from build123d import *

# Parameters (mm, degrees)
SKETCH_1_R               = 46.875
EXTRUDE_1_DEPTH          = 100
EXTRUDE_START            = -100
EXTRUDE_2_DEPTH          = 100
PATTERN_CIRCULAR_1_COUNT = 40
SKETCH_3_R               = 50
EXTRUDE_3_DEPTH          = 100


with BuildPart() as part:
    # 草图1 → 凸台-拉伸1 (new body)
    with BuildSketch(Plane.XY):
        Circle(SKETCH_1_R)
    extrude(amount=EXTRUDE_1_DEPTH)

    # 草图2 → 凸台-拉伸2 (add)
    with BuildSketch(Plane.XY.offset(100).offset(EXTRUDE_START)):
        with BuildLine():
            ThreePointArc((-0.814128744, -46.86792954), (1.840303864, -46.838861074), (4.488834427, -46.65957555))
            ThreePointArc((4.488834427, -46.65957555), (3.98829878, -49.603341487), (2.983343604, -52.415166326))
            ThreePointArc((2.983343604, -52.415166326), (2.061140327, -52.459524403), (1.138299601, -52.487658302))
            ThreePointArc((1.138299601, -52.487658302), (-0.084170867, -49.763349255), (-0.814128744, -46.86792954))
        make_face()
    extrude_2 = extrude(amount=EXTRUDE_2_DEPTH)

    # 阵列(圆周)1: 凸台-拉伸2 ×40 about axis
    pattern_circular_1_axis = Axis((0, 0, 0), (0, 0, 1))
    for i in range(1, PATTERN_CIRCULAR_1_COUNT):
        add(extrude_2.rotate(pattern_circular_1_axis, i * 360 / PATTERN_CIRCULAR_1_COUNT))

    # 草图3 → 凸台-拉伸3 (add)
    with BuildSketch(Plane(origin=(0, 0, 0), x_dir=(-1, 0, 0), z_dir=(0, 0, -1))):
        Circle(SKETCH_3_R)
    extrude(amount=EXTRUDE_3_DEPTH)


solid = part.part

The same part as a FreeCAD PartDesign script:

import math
import FreeCAD as App
import Part
import Sketcher

V = App.Vector

doc = App.newDocument("Part")
body = doc.addObject("PartDesign::Body", "Body")

sketch1 = body.newObject("Sketcher::SketchObject", "Sketch")
sketch1.AttachmentSupport = (doc.getObject("XY_Plane"), [""])
sketch1.MapMode = "FlatFace"
sketch1.addGeometry(Part.Circle(V(0, 0, 0), V(0, 0, 1), 46.875), False)
sketch1.addConstraint([
    Sketcher.Constraint("Coincident", 0, 3, -1, 1),
    Sketcher.Constraint("Diameter", 0, 93.75),
])
pad1 = body.newObject("PartDesign::Pad", "Pad")
pad1.Profile = sketch1
pad1.Length = 100

sketch2 = body.newObject("Sketcher::SketchObject", "Sketch001")
sketch2.AttachmentSupport = (doc.getObject("XY_Plane"), [""])
sketch2.MapMode = "FlatFace"
sketch2.addGeometry([
    Part.ArcOfCircle(Part.Circle(V(0, 0, 0), V(0, 0, 1), 46.875), math.radians(-90.995168), math.radians(-84.504832)),
    Part.ArcOfCircle(Part.Circle(V(16.06969, -44.151111, 0), V(0, 0, 1), 17.101007), math.radians(-170.85875), math.radians(-150.824348)),
    Part.ArcOfCircle(Part.Circle(V(0, -0.000001, 0), V(0, 0, 1), 52.499999), math.radians(-88.757621), math.radians(-86.742379)),
    Part.ArcOfCircle(Part.Circle(V(-12.556096, -45.275821, 0), V(0, 0, 1), 17.101007), math.radians(-24.675652), math.radians(-4.64125)),
], False)
sketch2.addConstraint([
    Sketcher.Constraint("Coincident", 0, 1, 1, 1),
    Sketcher.Constraint("Coincident", 1, 2, 2, 1),
    Sketcher.Constraint("Coincident", 2, 2, 3, 1),
    Sketcher.Constraint("Coincident", 3, 2, 0, 2),
    Sketcher.Constraint("Coincident", 0, 3, -1, 1),
    Sketcher.Constraint("Coincident", 2, 3, -1, 1),
    Sketcher.Constraint("Equal", 1, 3),
    Sketcher.Constraint("Radius", 2, 52.499999),
    Sketcher.Constraint("Radius", 0, 46.875),
    Sketcher.Constraint("Radius", 1, 17.101007),
    Sketcher.Constraint("DistanceX", -1, 1, 1, 2, 1.1383),
    Sketcher.Constraint("DistanceX", -1, 1, 1, 3, 16.06969),
    Sketcher.Constraint("DistanceY", 3, 3, -1, 1, 45.275821),
    Sketcher.Constraint("DistanceY", 1, 2, 2, 2, 0.072492),
])
pad2 = body.newObject("PartDesign::Pad", "Pad001")
pad2.Profile = sketch2
pad2.Length = 100
doc.recompute()

polarpattern = body.newObject("PartDesign::PolarPattern", "PolarPattern")
polarpattern.Originals = [pad2]
polarpattern.Axis = (doc.getObject("Z_Axis"), [""])
polarpattern.Angle = 360
polarpattern.Occurrences = 40
body.Tip = polarpattern

sketch3 = body.newObject("Sketcher::SketchObject", "Sketch002")
sketch3.AttachmentSupport = (doc.getObject("XY_Plane"), [""])
sketch3.MapMode = "FlatFace"
sketch3.addGeometry(Part.Circle(V(0, 0, 0), V(0, 0, 1), 50), False)
sketch3.addConstraint([
    Sketcher.Constraint("Coincident", 0, 3, -1, 1),
    Sketcher.Constraint("Diameter", 0, 100.0),
])
pad3 = body.newObject("PartDesign::Pad", "Pad002")
pad3.Profile = sketch3
pad3.Length = 100
pad3.Reversed = True

doc.recompute()
